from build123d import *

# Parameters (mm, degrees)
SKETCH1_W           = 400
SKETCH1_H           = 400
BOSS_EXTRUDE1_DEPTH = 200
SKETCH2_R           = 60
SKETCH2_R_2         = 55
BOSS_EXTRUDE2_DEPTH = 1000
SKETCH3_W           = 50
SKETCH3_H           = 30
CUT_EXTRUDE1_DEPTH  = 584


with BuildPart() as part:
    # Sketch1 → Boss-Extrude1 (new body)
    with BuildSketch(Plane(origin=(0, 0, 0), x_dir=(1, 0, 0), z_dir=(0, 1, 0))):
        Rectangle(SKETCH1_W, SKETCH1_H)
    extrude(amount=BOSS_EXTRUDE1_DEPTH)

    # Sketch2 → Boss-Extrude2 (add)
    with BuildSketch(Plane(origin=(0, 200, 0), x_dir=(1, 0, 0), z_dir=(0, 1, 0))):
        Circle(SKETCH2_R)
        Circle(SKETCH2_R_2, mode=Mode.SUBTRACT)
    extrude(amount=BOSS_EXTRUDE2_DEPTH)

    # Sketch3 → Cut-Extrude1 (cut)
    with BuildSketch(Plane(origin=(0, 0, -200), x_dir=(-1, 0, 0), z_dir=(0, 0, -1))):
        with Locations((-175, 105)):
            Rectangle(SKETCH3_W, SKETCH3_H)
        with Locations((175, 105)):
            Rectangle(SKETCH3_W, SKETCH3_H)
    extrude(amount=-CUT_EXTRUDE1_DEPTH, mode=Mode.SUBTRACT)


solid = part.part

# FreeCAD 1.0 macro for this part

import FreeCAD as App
import Part
import Sketcher
Q = App.Units.Quantity


def add_polygon(sketch, points):
    """Adds a closed chain of lines whose ends are joined by coincident constraints."""
    first, n = sketch.GeometryCount, len(points)
    for a, b in zip(points, points[1:] + points[:1]):
        sketch.addGeometry(Part.LineSegment(App.Vector(*a, 0), App.Vector(*b, 0)), False)
    for i in range(n):
        sketch.addConstraint(Sketcher.Constraint("Coincident", first + i, 2, first + (i + 1) % n, 1))

doc = App.newDocument("Part")
params = doc.addObject("Spreadsheet::Sheet", "Params")
for row, (alias, value) in enumerate([
    ("sketch1_width", "400 mm"),
    ("pad1_length", "200 mm"),
    ("sketch2_diameter", "120 mm"),
    ("sketch2_diameter2", "110 mm"),
    ("pad2_length", "1000 mm"),
    ("sketch3_width", "50 mm"),
    ("sketch3_height", "30 mm"),
    ("pocket1_length", "584 mm"),
], start=1):
    params.set(f"A{row}", alias)
    params.set(f"B{row}", "=" + value)
    params.setAlias(f"B{row}", alias)

body = doc.addObject("PartDesign::Body", "Body")

# Sketch on XZ plane
sketch1 = body.newObject("Sketcher::SketchObject", "Sketch")
sketch1.AttachmentSupport = (doc.getObject("XZ_Plane"), [""])
sketch1.MapMode = "FlatFace"
add_polygon(sketch1, [(-200, -200), (-200, 200), (200, 200), (200, -200)])  # lines 0-3
sketch1.addConstraint([
    Sketcher.Constraint("Vertical", 0),
    Sketcher.Constraint("Horizontal", 1),
    Sketcher.Constraint("Vertical", 2),
    Sketcher.Constraint("Horizontal", 3),
    Sketcher.Constraint("Symmetric", 0, 2, 2, 2, -1, 1),
    Sketcher.Constraint("Equal", 3, 0),
    Sketcher.Constraint("DistanceX", 1, 1, 1, 2, Q("400 mm")),
])
sketch1.setExpression("Constraints[10]", "Params.sketch1_width")
pad1 = body.newObject("PartDesign::Pad", "Pad")
pad1.Profile = sketch1
pad1.setExpression("Length", "Params.pad1_length")
pad1.Reversed = True

# Sketch on XZ plane
sketch2 = body.newObject("Sketcher::SketchObject", "Sketch001")
sketch2.AttachmentSupport = (doc.getObject("XZ_Plane"), [""])
sketch2.MapMode = "FlatFace"
sketch2.AttachmentOffset = App.Placement(App.Vector(0, 0, -200), App.Rotation())
sketch2.addGeometry([
    Part.Circle(App.Vector(0, 0, 0), App.Vector(0, 0, 1), 60),
    Part.Circle(App.Vector(0, 0, 0), App.Vector(0, 0, 1), 55),
], False)
sketch2.addConstraint([
    Sketcher.Constraint("Coincident", 0, 3, -1, 1),
    Sketcher.Constraint("Coincident", 1, 3, -1, 1),
    Sketcher.Constraint("Diameter", 0, Q("120 mm")),
    Sketcher.Constraint("Diameter", 1, Q("110 mm")),
])
sketch2.setExpression("Constraints[2]", "Params.sketch2_diameter")
sketch2.setExpression("Constraints[3]", "Params.sketch2_diameter2")
pad2 = body.newObject("PartDesign::Pad", "Pad001")
pad2.Profile = sketch2
pad2.setExpression("Length", "Params.pad2_length")
pad2.Reversed = True

# Sketch on XY plane
sketch3 = body.newObject("Sketcher::SketchObject", "Sketch002")
sketch3.AttachmentSupport = (doc.getObject("XY_Plane"), [""])
sketch3.MapMode = "FlatFace"
sketch3.AttachmentOffset = App.Placement(App.Vector(0, 0, -200), App.Rotation())
add_polygon(sketch3, [(200, 120), (200, 90), (150, 90), (150, 120)])  # lines 0-3
add_polygon(sketch3, [(-150, 120), (-150, 90), (-200, 90), (-200, 120)])  # lines 4-7
sketch3.addConstraint([
    Sketcher.Constraint("Vertical", 0),
    Sketcher.Constraint("Horizontal", 1),
    Sketcher.Constraint("Vertical", 2),
    Sketcher.Constraint("Horizontal", 3),
    Sketcher.Constraint("Vertical", 4),
    Sketcher.Constraint("Horizontal", 5),
    Sketcher.Constraint("Vertical", 6),
    Sketcher.Constraint("Horizontal", 7),
    Sketcher.Constraint("Symmetric", 1, 2, 4, 2, -2),
    Sketcher.Constraint("Symmetric", 3, 2, 6, 2, -2),
    Sketcher.Constraint("DistanceX", 1, 2, 1, 1, Q("50 mm")),
    Sketcher.Constraint("DistanceY", 0, 2, 0, 1, Q("30 mm")),
    Sketcher.Constraint("DistanceX", -1, 1, 0, 2, Q("200 mm")),
    Sketcher.Constraint("DistanceY", -1, 1, 0, 2, Q("90 mm")),
])
sketch3.setExpression("Constraints[18]", "Params.sketch3_width")
sketch3.setExpression("Constraints[19]", "Params.sketch3_height")
pocket1 = body.newObject("PartDesign::Pocket", "Pocket")
pocket1.Profile = sketch3
pocket1.setExpression("Length", "Params.pocket1_length")
pocket1.Reversed = True

doc.recompute()
